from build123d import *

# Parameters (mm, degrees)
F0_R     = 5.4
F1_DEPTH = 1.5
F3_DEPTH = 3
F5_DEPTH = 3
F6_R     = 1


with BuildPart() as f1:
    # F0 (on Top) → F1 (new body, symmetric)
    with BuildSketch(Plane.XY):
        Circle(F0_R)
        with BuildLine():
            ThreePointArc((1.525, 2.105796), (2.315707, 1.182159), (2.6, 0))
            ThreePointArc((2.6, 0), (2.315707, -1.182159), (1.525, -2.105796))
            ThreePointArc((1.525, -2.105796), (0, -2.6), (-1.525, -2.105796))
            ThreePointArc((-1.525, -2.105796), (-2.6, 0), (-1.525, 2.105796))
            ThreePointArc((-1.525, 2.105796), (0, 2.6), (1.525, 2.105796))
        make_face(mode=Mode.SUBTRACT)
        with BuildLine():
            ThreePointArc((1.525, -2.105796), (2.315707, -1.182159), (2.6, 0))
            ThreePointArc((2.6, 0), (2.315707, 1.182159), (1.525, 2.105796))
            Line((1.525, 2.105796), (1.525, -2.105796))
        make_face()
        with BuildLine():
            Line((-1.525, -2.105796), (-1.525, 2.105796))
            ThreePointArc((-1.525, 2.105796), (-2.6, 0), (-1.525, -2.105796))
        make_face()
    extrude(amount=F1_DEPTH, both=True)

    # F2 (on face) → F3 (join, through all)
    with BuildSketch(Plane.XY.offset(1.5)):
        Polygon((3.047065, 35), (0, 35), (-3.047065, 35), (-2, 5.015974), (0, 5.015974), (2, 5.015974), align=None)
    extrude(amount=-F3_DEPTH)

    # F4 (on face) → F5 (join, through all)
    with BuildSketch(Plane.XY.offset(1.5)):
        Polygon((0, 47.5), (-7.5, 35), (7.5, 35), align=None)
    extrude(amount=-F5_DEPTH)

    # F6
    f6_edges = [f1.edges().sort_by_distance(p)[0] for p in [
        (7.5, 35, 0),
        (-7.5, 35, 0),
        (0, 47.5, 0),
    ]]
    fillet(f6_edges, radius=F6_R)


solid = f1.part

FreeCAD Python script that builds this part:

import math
import FreeCAD as App
import Part
import Sketcher
from FreeCAD import Vector
Q = App.Units.Quantity


def edges_at(feature, points):
    """Names of the edges that pass closest to the given points."""
    edges = feature.Shape.Edges
    near = lambda p: min(range(len(edges)), key=lambda i: edges[i].distToShape(Part.Vertex(*p))[0])
    return sorted({f"Edge{near(p) + 1}" for p in points})

doc = App.newDocument("Part")
body = doc.addObject("PartDesign::Body", "Body")

# Sketch on XY plane
sketch1 = doc.addObject("Sketcher::SketchObject", "Sketch")
body.addObject(sketch1)
sketch1.AttachmentSupport = (doc.XY_Plane, [""])
sketch1.MapMode = "FlatFace"
sketch1.addGeometry(Part.Circle(Vector(0, 0, 0), Vector(0, 0, 1), 5.4), False)
sketch1.addGeometry(Part.ArcOfCircle(Part.Circle(Vector(0, -0.000002, 0), Vector(0, 0, 1), 2.600002), math.radians(54.088279), math.radians(125.911721)), False)
sketch1.addGeometry(Part.LineSegment(Vector(1.525, 2.105796, 0), Vector(1.525, -2.105796, 0)), False)
sketch1.addGeometry(Part.ArcOfCircle(Part.Circle(Vector(0, 0.000002, 0), Vector(0, 0, 1), 2.600002), math.radians(-125.911721), math.radians(-54.088279)), False)
sketch1.addGeometry(Part.LineSegment(Vector(-1.525, -2.105796, 0), Vector(-1.525, 2.105796, 0)), False)
sketch1.addConstraint(Sketcher.Constraint("Coincident", 1, 1, 2, 1))
sketch1.addConstraint(Sketcher.Constraint("Coincident", 2, 2, 3, 2))
sketch1.addConstraint(Sketcher.Constraint("Coincident", 3, 1, 4, 1))
sketch1.addConstraint(Sketcher.Constraint("Coincident", 4, 2, 1, 2))
sketch1.addConstraint(Sketcher.Constraint("Vertical", 2))
sketch1.addConstraint(Sketcher.Constraint("Vertical", 4))
sketch1.addConstraint(Sketcher.Constraint("Coincident", 0, 3, -1, 1))
sketch1.addConstraint(Sketcher.Constraint("Coincident", 1, 3, -1, 1))
sketch1.addConstraint(Sketcher.Constraint("Coincident", 3, 3, -1, 1))
sketch1.addConstraint(Sketcher.Constraint("Equal", 1, 3))
sketch1.addConstraint(Sketcher.Constraint("Horizontal", 2, 2, 3, 1))
sketch1.addConstraint(Sketcher.Constraint("Diameter", 0, 10.8))
sketch1.addConstraint(Sketcher.Constraint("Radius", 1, 2.600002))
sketch1.addConstraint(Sketcher.Constraint("DistanceX", 3, 1, 2, 2, 3.05))
pad1 = doc.addObject("PartDesign::Pad", "Pad")
body.addObject(pad1)
pad1.Profile = sketch1
pad1.Length = 3
pad1.Midplane = True

# Sketch on XY plane
sketch2 = doc.addObject("Sketcher::SketchObject", "Sketch001")
body.addObject(sketch2)
sketch2.AttachmentSupport = (doc.XY_Plane, [""])
sketch2.MapMode = "FlatFace"
sketch2.AttachmentOffset = App.Placement(Vector(0, 0, 1.5), App.Rotation())
sketch2.addGeometry(Part.LineSegment(Vector(3.047065, 35, 0), Vector(-3.047065, 35, 0)), False)
sketch2.addGeometry(Part.LineSegment(Vector(-3.047065, 35, 0), Vector(-2, 5.015974, 0)), False)
sketch2.addGeometry(Part.LineSegment(Vector(-2, 5.015974, 0), Vector(2, 5.015974, 0)), False)
sketch2.addGeometry(Part.LineSegment(Vector(2, 5.015974, 0), Vector(3.047065, 35, 0)), False)
sketch2.addConstraint(Sketcher.Constraint("Coincident", 0, 2, 1, 1))
sketch2.addConstraint(Sketcher.Constraint("Coincident", 1, 2, 2, 1))
sketch2.addConstraint(Sketcher.Constraint("Coincident", 2, 2, 3, 1))
sketch2.addConstraint(Sketcher.Constraint("Coincident", 3, 2, 0, 1))
sketch2.addConstraint(Sketcher.Constraint("Horizontal", 0))
sketch2.addConstraint(Sketcher.Constraint("Horizontal", 2))
sketch2.addConstraint(Sketcher.Constraint("Equal", 1, 3))
sketch2.addConstraint(Sketcher.Constraint("DistanceX", 2, 1, 2, 2, 4.0))
sketch2.addConstraint(Sketcher.Constraint("Angle", 1, Q("-88 deg")))
sketch2.addConstraint(Sketcher.Constraint("DistanceY", -1, 1, 0, 2, 35.0))
sketch2.addConstraint(Sketcher.Constraint("DistanceX", 1, 2, -1, 1, 2.0))
sketch2.addConstraint(Sketcher.Constraint("DistanceX", 0, 2, 0, 1, 6.09413))
pad2 = doc.addObject("PartDesign::Pad", "Pad001")
body.addObject(pad2)
pad2.Profile = sketch2
pad2.Length = 3
pad2.Reversed = True

# Sketch on XY plane
sketch3 = doc.addObject("Sketcher::SketchObject", "Sketch002")
body.addObject(sketch3)
sketch3.AttachmentSupport = (doc.XY_Plane, [""])
sketch3.MapMode = "FlatFace"
sketch3.AttachmentOffset = App.Placement(Vector(0, 0, 1.5), App.Rotation())
sketch3.addGeometry(Part.LineSegment(Vector(0, 47.5, 0), Vector(-7.5, 35, 0)), False)
sketch3.addGeometry(Part.LineSegment(Vector(-7.5, 35, 0), Vector(7.5, 35, 0)), False)
sketch3.addGeometry(Part.LineSegment(Vector(7.5, 35, 0), Vector(0, 47.5, 0)), False)
sketch3.addConstraint(Sketcher.Constraint("Coincident", 0, 2, 1, 1))
sketch3.addConstraint(Sketcher.Constraint("Coincident", 1, 2, 2, 1))
sketch3.addConstraint(Sketcher.Constraint("Coincident", 2, 2, 0, 1))
sketch3.addConstraint(Sketcher.Constraint("Horizontal", 1))
sketch3.addConstraint(Sketcher.Constraint("PointOnObject", 2, 2, -2))
sketch3.addConstraint(Sketcher.Constraint("Equal", 0, 2))
sketch3.addConstraint(Sketcher.Constraint("DistanceX", 1, 1, 1, 2, 15.0))
sketch3.addConstraint(Sketcher.Constraint("DistanceY", -1, 1, 0, 2, 35.0))
sketch3.addConstraint(Sketcher.Constraint("DistanceY", -1, 1, 2, 2, 47.5))
pad3 = doc.addObject("PartDesign::Pad", "Pad002")
body.addObject(pad3)
pad3.Profile = sketch3
pad3.Length = 3
pad3.Reversed = True
doc.recompute()

fillet = doc.addObject("PartDesign::Fillet", "Fillet")
body.addObject(fillet)
fillet.Base = (pad3, edges_at(pad3, [(7.5, 35, 0), (-7.5, 35, 0), (0, 47.5, 0)]))
fillet.Radius = 1

doc.recompute()
